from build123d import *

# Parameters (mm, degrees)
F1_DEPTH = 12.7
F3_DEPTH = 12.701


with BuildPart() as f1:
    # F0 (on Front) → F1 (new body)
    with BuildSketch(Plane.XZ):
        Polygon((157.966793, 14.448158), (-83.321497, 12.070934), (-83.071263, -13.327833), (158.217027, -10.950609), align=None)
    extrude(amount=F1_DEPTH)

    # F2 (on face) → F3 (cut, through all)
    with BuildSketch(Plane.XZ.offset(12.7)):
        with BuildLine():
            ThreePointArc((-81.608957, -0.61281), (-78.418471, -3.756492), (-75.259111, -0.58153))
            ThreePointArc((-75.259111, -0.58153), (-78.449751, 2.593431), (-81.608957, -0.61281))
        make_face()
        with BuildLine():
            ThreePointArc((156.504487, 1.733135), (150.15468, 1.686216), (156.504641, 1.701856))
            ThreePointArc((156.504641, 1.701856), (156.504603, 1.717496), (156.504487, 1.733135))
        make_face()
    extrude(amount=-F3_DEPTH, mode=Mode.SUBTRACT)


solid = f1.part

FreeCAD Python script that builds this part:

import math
import FreeCAD as App
import Part
import Sketcher
Q = App.Units.Quantity

doc = App.newDocument("Part")
body = doc.addObject("PartDesign::Body", "Body")

# Sketch on XZ plane
sketch1 = body.newObject("Sketcher::SketchObject", "Sketch")
sketch1.AttachmentSupport = (doc.getObject("XZ_Plane"), [""])
sketch1.MapMode = "FlatFace"
sketch1.addGeometry([
    Part.LineSegment(App.Vector(158, 14, 0), App.Vector(-83, 12, 0)),
    Part.LineSegment(App.Vector(-83, 12, 0), App.Vector(-83, -13, 0)),
    Part.LineSegment(App.Vector(-83, -13, 0), App.Vector(158, -11, 0)),
    Part.LineSegment(App.Vector(158, -11, 0), App.Vector(158, 14, 0)),
], False)
sketch1.addConstraint([
    Sketcher.Constraint("Coincident", 0, 2, 1, 1),
    Sketcher.Constraint("Coincident", 1, 2, 2, 1),
    Sketcher.Constraint("Coincident", 2, 2, 3, 1),
    Sketcher.Constraint("Coincident", 3, 2, 0, 1),
    Sketcher.Constraint("Perpendicular", 0, 1),
    Sketcher.Constraint("Perpendicular", 1, 2),
    Sketcher.Constraint("Perpendicular", 2, 3),
    Sketcher.Constraint("Distance", 1, Q("1 in")),
    Sketcher.Constraint("Distance", 0, Q("9.5 in")),
    Sketcher.Constraint("DistanceY", 2, 2, -1, 1, 10.950609),
    Sketcher.Constraint("DistanceX", 1, 2, 2, 2, 241.28829),
    Sketcher.Constraint("DistanceX", 0, 2, -1, 1, 83.321497),
])
pad1 = body.newObject("PartDesign::Pad", "Pad")
pad1.Profile = sketch1
pad1.Length = Q("0.5 in")

# Sketch on XZ plane
sketch2 = body.newObject("Sketcher::SketchObject", "Sketch001")
sketch2.AttachmentSupport = (doc.getObject("XZ_Plane"), [""])
sketch2.MapMode = "FlatFace"
sketch2.AttachmentOffset = App.Placement(App.Vector(0, 0, 0.5 * 25.4), App.Rotation())
sketch2.addGeometry([
    Part.ArcOfCircle(Part.Circle(App.Vector(-78.434, -0.582, 0), App.Vector(0, 0, 1), 3.175), math.radians(-179), math.radians(0)),
    Part.ArcOfCircle(Part.Circle(App.Vector(-78.434, -0.582, 0), App.Vector(0, 0, 1), 3.175), math.radians(0), math.radians(181)),
    Part.ArcOfCircle(Part.Circle(App.Vector(153.33, 1.702, 0), App.Vector(0, 0, 1), 3.175), math.radians(1), math.radians(360)),
    Part.ArcOfCircle(Part.Circle(App.Vector(153.369, 1.702, 0), App.Vector(0, 0, 1), 3.136), math.radians(0), math.radians(0.57)),
], False)
sketch2.addConstraint([
    Sketcher.Constraint("Tangent", 0, 1, 1, 2),
    Sketcher.Constraint("Coincident", 1, 1, 0, 2),
    Sketcher.Constraint("Coincident", 2, 1, 3, 2),
    Sketcher.Constraint("Coincident", 3, 1, 2, 2),
    Sketcher.Constraint("Equal", 1, 2),
    Sketcher.Constraint("Horizontal", 0, 3, 1, 1),
    Sketcher.Constraint("Radius", 0, Q("0.125 in")),
    Sketcher.Constraint("DistanceX", -1, 1, 2, 3, Q("6.0366 in")),
    Sketcher.Constraint("Radius", 3, 3.135756),
    Sketcher.Constraint("DistanceX", 0, 1, 2, 3, 234.938598),
    Sketcher.Constraint("DistanceX", 3, 3, 2, 1, 3.135602),
    Sketcher.Constraint("DistanceX", 0, 3, 2, 1, 234.938598),
    Sketcher.Constraint("DistanceY", 3, 1, 3, 3, 0.000201),
    Sketcher.Constraint("DistanceY", 0, 3, -1, 1, 0.58153),
    Sketcher.Constraint("DistanceY", -1, 1, 2, 3, 1.701864),
])
pocket1 = body.newObject("PartDesign::Pocket", "Pocket")
pocket1.Profile = sketch2
pocket1.Type = "ThroughAll"

doc.recompute()
